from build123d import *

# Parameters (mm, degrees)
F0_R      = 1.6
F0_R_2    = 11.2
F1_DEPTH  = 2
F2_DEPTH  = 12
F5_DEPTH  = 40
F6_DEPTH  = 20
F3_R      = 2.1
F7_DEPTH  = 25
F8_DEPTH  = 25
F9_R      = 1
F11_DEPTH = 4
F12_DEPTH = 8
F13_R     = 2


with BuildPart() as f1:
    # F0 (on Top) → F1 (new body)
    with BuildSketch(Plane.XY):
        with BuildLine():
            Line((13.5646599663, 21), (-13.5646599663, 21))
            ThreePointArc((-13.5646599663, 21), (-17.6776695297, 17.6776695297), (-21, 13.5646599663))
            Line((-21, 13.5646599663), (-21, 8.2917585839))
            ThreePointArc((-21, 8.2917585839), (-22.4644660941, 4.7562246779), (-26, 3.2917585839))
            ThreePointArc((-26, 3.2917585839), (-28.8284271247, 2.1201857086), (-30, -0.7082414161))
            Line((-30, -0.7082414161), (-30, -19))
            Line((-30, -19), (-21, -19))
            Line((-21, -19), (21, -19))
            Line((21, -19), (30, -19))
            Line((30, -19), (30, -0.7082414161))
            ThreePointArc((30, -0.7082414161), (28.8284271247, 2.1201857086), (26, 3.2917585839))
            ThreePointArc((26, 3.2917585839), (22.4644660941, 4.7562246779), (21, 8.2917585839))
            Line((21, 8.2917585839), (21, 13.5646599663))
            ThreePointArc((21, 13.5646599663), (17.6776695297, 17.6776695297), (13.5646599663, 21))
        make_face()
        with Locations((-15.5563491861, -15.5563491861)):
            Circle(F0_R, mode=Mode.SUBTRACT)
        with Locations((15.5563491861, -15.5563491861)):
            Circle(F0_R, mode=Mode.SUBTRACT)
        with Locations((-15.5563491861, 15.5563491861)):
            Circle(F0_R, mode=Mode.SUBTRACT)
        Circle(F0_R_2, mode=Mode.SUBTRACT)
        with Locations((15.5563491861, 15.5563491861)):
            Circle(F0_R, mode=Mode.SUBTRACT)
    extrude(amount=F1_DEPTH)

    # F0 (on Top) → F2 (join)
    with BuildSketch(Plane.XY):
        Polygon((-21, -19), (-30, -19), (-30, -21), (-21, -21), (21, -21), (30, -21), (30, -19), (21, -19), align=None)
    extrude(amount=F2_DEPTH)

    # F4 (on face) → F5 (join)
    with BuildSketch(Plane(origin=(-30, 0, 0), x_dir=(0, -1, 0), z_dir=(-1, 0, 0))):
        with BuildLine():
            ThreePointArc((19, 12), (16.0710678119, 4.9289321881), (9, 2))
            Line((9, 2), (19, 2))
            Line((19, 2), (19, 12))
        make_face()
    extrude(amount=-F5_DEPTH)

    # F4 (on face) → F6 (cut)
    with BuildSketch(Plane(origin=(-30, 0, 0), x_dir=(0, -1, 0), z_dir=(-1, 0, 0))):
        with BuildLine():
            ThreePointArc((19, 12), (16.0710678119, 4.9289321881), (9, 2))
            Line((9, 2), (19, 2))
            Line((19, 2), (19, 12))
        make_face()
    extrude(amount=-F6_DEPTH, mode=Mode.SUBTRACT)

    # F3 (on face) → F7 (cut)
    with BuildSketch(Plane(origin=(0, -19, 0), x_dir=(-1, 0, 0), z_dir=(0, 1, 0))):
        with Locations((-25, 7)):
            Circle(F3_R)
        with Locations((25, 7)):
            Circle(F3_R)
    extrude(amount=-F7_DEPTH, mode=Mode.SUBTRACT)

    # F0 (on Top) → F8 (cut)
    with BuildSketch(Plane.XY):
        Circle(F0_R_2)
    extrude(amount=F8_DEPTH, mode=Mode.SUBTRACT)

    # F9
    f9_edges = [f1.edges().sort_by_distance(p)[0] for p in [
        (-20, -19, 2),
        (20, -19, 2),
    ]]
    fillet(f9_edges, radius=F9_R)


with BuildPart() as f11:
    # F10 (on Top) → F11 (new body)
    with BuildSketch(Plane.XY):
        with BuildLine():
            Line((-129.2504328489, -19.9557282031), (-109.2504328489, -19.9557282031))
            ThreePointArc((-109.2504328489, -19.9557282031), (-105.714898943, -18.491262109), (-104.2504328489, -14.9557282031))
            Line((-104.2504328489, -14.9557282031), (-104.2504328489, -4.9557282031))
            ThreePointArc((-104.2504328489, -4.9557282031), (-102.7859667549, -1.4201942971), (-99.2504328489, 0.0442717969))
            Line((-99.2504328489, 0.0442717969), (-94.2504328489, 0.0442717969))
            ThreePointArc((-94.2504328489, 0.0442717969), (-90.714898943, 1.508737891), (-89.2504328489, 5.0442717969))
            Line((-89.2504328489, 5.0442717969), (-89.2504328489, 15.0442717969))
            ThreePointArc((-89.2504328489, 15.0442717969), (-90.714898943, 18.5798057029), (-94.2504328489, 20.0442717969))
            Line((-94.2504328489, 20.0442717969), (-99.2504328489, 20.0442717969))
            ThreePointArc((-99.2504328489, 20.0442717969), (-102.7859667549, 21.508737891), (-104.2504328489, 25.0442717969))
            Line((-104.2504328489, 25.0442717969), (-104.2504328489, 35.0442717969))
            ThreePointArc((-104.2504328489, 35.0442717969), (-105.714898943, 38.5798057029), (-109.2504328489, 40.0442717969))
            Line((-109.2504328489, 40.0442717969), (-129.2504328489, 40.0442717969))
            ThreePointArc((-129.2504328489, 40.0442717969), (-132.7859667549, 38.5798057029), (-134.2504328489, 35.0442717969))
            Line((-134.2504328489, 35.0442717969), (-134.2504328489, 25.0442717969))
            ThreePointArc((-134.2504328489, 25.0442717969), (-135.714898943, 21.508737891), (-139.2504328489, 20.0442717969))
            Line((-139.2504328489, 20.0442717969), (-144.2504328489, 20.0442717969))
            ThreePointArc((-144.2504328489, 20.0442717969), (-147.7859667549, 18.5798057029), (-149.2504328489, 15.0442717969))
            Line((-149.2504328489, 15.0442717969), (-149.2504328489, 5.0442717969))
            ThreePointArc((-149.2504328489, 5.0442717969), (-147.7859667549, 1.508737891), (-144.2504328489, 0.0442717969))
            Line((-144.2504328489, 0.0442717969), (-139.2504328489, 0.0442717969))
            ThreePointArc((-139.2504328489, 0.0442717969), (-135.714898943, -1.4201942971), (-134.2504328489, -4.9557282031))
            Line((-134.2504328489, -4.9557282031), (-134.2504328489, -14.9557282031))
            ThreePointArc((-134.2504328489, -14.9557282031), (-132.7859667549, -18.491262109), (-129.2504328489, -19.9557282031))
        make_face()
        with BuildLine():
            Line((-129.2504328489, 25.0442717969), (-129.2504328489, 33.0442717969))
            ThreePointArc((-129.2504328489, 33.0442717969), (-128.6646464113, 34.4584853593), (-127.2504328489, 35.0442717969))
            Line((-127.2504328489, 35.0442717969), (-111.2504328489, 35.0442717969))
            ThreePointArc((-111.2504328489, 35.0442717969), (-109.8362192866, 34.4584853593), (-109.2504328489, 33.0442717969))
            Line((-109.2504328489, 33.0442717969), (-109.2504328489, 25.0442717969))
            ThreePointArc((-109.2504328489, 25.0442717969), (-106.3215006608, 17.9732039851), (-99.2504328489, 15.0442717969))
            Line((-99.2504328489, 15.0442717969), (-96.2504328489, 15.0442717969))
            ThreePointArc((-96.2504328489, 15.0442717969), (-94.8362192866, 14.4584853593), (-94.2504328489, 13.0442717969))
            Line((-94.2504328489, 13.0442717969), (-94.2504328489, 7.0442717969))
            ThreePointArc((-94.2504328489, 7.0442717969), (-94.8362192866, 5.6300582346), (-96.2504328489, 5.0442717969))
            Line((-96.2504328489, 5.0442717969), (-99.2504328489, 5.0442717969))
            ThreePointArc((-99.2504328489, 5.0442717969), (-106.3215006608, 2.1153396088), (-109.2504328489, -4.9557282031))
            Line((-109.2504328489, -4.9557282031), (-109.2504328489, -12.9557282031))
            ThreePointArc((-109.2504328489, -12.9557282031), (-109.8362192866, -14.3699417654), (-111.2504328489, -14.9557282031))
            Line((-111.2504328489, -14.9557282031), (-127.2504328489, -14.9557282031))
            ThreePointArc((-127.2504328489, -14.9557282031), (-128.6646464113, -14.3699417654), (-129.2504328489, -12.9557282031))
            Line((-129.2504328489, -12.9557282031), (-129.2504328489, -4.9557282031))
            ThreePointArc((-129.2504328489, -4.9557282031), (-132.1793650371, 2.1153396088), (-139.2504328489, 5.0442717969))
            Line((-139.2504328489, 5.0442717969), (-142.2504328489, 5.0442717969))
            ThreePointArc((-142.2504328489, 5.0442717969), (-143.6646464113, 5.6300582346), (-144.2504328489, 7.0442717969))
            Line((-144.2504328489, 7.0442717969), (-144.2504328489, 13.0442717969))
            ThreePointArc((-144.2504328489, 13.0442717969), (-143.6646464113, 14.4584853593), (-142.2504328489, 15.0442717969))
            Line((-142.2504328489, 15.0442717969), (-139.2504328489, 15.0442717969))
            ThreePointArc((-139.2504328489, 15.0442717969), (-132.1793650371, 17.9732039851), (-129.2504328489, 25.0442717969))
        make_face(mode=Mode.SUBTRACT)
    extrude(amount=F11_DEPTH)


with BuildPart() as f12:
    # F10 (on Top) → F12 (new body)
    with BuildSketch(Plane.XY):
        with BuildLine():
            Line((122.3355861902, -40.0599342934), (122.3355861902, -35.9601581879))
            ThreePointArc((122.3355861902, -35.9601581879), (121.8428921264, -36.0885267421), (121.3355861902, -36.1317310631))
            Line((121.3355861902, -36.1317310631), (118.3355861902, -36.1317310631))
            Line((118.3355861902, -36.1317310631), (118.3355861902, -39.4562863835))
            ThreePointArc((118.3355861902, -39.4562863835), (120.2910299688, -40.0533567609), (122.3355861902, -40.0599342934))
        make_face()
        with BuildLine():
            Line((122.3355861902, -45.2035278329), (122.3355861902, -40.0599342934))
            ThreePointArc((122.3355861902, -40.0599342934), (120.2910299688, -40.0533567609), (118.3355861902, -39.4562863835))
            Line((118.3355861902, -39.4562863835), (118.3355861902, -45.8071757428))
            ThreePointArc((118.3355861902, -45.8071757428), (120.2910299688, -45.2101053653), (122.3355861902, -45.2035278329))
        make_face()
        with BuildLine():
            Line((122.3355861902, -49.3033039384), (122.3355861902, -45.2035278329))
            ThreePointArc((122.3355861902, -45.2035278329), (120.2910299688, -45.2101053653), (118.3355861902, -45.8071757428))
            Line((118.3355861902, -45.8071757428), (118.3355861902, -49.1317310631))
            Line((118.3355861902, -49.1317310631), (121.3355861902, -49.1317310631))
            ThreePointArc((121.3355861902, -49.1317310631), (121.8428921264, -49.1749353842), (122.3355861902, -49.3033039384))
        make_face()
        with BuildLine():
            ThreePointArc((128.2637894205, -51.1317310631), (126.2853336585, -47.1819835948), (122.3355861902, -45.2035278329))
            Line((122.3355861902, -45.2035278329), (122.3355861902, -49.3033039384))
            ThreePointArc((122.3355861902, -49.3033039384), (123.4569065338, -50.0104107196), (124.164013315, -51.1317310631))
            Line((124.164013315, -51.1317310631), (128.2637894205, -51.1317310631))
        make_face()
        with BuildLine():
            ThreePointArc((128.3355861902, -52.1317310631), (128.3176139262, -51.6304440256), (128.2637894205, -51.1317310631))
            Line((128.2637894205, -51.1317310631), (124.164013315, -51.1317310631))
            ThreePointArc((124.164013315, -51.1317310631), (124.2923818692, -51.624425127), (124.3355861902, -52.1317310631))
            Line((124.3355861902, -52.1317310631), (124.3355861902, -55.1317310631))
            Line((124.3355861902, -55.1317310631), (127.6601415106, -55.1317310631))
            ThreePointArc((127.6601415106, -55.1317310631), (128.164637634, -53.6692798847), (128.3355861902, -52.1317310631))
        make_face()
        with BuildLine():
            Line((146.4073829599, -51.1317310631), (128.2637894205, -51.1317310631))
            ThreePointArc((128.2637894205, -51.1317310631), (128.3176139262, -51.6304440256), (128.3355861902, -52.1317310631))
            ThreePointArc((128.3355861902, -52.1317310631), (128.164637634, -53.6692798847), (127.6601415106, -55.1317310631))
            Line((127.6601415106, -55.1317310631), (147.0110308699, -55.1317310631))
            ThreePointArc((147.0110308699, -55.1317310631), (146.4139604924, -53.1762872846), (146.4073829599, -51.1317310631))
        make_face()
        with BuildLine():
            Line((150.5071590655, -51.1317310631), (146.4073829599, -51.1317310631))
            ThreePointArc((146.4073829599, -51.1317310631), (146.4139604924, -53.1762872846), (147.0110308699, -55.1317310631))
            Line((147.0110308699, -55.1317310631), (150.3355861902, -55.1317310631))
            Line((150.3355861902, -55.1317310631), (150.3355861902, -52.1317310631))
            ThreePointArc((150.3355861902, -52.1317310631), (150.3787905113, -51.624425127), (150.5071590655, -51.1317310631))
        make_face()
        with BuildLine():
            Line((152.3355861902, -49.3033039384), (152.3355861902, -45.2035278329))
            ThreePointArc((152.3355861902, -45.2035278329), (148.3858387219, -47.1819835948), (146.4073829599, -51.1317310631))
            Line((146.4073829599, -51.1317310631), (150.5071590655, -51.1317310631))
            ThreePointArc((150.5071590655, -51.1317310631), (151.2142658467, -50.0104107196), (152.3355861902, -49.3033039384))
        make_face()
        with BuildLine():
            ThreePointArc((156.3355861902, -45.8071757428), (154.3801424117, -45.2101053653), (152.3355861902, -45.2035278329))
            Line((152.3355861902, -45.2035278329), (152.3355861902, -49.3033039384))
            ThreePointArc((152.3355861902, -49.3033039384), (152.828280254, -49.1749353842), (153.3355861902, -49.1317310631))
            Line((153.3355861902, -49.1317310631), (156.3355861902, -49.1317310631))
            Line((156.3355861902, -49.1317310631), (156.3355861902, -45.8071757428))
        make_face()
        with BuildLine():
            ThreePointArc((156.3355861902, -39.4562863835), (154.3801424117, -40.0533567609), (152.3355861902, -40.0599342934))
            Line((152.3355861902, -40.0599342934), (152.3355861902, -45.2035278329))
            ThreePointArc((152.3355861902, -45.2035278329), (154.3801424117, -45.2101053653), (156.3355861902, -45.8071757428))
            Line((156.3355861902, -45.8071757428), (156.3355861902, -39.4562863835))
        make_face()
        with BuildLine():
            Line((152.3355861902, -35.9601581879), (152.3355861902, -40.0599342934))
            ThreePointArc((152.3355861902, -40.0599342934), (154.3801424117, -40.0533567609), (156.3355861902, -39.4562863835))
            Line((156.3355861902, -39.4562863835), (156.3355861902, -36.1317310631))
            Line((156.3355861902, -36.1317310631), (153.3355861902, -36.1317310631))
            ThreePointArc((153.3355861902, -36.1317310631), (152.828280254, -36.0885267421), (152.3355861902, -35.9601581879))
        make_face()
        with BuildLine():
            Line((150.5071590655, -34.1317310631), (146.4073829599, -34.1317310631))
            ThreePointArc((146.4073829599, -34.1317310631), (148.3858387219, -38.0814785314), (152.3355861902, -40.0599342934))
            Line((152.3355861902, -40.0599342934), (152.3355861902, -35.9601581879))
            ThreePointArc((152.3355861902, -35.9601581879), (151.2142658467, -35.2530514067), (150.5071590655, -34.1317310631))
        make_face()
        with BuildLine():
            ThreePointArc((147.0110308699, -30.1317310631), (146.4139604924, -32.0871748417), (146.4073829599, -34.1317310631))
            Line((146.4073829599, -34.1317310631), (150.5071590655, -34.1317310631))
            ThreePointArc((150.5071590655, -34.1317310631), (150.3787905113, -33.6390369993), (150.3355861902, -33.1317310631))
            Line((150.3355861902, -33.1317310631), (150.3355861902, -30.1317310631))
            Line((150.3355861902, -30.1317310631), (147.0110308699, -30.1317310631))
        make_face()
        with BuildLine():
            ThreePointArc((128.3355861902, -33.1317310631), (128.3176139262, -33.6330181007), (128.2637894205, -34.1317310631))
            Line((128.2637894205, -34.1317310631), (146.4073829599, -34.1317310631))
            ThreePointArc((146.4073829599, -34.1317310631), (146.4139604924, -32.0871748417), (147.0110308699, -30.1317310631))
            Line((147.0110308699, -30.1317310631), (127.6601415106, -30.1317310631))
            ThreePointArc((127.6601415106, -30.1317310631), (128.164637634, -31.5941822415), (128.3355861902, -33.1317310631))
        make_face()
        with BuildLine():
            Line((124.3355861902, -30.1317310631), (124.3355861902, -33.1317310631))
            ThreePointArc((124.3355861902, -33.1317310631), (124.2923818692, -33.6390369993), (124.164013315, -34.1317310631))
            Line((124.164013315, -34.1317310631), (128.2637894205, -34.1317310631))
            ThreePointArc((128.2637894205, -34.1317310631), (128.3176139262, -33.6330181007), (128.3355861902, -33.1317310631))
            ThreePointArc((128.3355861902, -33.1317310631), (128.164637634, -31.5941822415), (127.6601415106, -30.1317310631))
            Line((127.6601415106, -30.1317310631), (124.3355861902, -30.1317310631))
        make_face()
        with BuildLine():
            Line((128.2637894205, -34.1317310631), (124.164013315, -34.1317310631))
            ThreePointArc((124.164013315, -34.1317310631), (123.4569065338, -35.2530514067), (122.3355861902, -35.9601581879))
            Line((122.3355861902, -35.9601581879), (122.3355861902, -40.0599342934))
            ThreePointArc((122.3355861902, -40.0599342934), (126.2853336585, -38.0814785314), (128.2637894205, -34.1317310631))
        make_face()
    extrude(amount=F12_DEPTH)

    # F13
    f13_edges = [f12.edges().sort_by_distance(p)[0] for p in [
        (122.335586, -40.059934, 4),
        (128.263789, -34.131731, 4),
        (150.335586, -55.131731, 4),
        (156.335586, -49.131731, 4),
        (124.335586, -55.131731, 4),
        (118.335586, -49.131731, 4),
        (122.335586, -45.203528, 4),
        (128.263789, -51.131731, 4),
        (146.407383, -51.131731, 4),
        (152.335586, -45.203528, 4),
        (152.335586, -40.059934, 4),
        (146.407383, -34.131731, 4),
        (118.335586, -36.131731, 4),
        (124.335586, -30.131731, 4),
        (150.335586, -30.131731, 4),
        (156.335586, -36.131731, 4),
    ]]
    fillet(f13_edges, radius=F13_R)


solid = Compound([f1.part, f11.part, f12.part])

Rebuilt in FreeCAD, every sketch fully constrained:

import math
import FreeCAD as App
import Part
import Sketcher


def edges_at(feature, points):
    """Names of the edges that pass closest to the given points."""
    edges = feature.Shape.Edges
    near = lambda p: min(range(len(edges)), key=lambda i: edges[i].distToShape(Part.Vertex(*p))[0])
    return sorted({f"Edge{near(p) + 1}" for p in points})


def add_polygon(sketch, points):
    """Adds a closed chain of lines whose ends are joined by coincident constraints."""
    first, n = sketch.GeometryCount, len(points)
    for a, b in zip(points, points[1:] + points[:1]):
        sketch.addGeometry(Part.LineSegment(App.Vector(*a, 0), App.Vector(*b, 0)), False)
    for i in range(n):
        sketch.addConstraint(Sketcher.Constraint("Coincident", first + i, 2, first + (i + 1) % n, 1))

doc = App.newDocument("Part")
body = doc.addObject("PartDesign::Body", "Body")

# Sketch on XY plane
sketch1 = doc.addObject("Sketcher::SketchObject", "Sketch")
body.addObject(sketch1)
sketch1.AttachmentSupport = (doc.XY_Plane, [""])
sketch1.MapMode = "FlatFace"
sketch1.addGeometry([
    Part.LineSegment(App.Vector(13.6, 21, 0), App.Vector(-13.6, 21, 0)),  # 0
    Part.ArcOfCircle(Part.Circle(App.Vector(0, 0, 0), App.Vector(0, 0, 1), 25), math.radians(123), math.radians(147)),  # 1
    Part.LineSegment(App.Vector(-21, 13.6, 0), App.Vector(-21, 8.3, 0)),  # 2
    Part.ArcOfCircle(Part.Circle(App.Vector(-26, 8.3, 0), App.Vector(0, 0, 1), 5), math.radians(-90), math.radians(0)),  # 3
    Part.ArcOfCircle(Part.Circle(App.Vector(-26, -0.7, 0), App.Vector(0, 0, 1), 4), math.radians(90), math.radians(180)),  # 4
    Part.LineSegment(App.Vector(-30, -0.7, 0), App.Vector(-30, -19, 0)),  # 5
    Part.LineSegment(App.Vector(-30, -19, 0), App.Vector(30, -19, 0)),  # 6
    Part.LineSegment(App.Vector(30, -19, 0), App.Vector(30, -0.7, 0)),  # 7
    Part.ArcOfCircle(Part.Circle(App.Vector(26, -0.7, 0), App.Vector(0, 0, 1), 4), math.radians(0), math.radians(90)),  # 8
    Part.ArcOfCircle(Part.Circle(App.Vector(26, 8.3, 0), App.Vector(0, 0, 1), 5), math.radians(180), math.radians(270)),  # 9
    Part.LineSegment(App.Vector(21, 8.3, 0), App.Vector(21, 13.6, 0)),  # 10
    Part.ArcOfCircle(Part.Circle(App.Vector(0, 0, 0), App.Vector(0, 0, 1), 25), math.radians(33), math.radians(57)),  # 11
    Part.Circle(App.Vector(-15.6, -15.6, 0), App.Vector(0, 0, 1), 1.6),  # 12
    Part.Circle(App.Vector(15.6, -15.6, 0), App.Vector(0, 0, 1), 1.6),  # 13
    Part.Circle(App.Vector(-15.6, 15.6, 0), App.Vector(0, 0, 1), 1.6),  # 14
    Part.Circle(App.Vector(0, 0, 0), App.Vector(0, 0, 1), 11.2),  # 15
    Part.Circle(App.Vector(15.6, 15.6, 0), App.Vector(0, 0, 1), 1.6),  # 16
], False)
sketch1.addConstraint([
    Sketcher.Constraint("Coincident", 0, 2, 1, 1),
    Sketcher.Constraint("Coincident", 1, 2, 2, 1),
    Sketcher.Constraint("Tangent", 2, 2, 3, 2),
    Sketcher.Constraint("Tangent", 3, 1, 4, 1),
    Sketcher.Constraint("Tangent", 4, 2, 5, 1),
    Sketcher.Constraint("Coincident", 5, 2, 6, 1),
    Sketcher.Constraint("Coincident", 6, 2, 7, 1),
    Sketcher.Constraint("Tangent", 7, 2, 8, 1),
    Sketcher.Constraint("Tangent", 8, 2, 9, 2),
    Sketcher.Constraint("Tangent", 9, 1, 10, 1),
    Sketcher.Constraint("Coincident", 10, 2, 11, 1),
    Sketcher.Constraint("Coincident", 11, 2, 0, 1),
    Sketcher.Constraint("Horizontal", 0),
    Sketcher.Constraint("Vertical", 2),
    Sketcher.Constraint("Vertical", 5),
    Sketcher.Constraint("Horizontal", 6),
    Sketcher.Constraint("Vertical", 7),
    Sketcher.Constraint("Vertical", 10),
    Sketcher.Constraint("Coincident", 1, 3, -1, 1),
    Sketcher.Constraint("Coincident", 11, 3, -1, 1),
    Sketcher.Constraint("Coincident", 15, 3, -1, 1),
    Sketcher.Constraint("Equal", 4, 8),
    Sketcher.Constraint("Equal", 3, 9),
    Sketcher.Constraint("Equal", 1, 11),
    Sketcher.Constraint("Equal", 12, 13),
    Sketcher.Constraint("Equal", 13, 14),
    Sketcher.Constraint("Equal", 14, 16),
    Sketcher.Constraint("Symmetric", 13, 3, 14, 3, -1, 1),
    Sketcher.Constraint("Symmetric", 12, 3, 16, 3, -1, 1),
    Sketcher.Constraint("Symmetric", 4, 3, 8, 3, -2),
    Sketcher.Constraint("Symmetric", 12, 3, 13, 3, -2),
    Sketcher.Constraint("Horizontal", 1, 2, 10, 2),
    Sketcher.Constraint("Vertical", 3, 3, 4, 3),
    Sketcher.Constraint("Radius", 1, 25.0),
    Sketcher.Constraint("Radius", 3, 5.0),
    Sketcher.Constraint("Radius", 4, 4.0),
    Sketcher.Constraint("Diameter", 12, 3.2),
    Sketcher.Constraint("Diameter", 15, 22.4),
    Sketcher.Constraint("DistanceX", 6, 1, 6, 2, 60.0),
    Sketcher.Constraint("DistanceY", -1, 1, 0, 2, 21.0),
    Sketcher.Constraint("DistanceY", 5, 2, -1, 1, 19.0),
    Sketcher.Constraint("DistanceY", 2, 2, 2, 1, 5.272901),
    Sketcher.Constraint("DistanceX", 12, 3, 13, 3, 31.112698),
    Sketcher.Constraint("DistanceY", 12, 3, 14, 3, 31.112698),
])
pad1 = doc.addObject("PartDesign::Pad", "Pad")
body.addObject(pad1)
pad1.Profile = sketch1
pad1.Length = 2

# Sketch on XY plane
sketch2 = doc.addObject("Sketcher::SketchObject", "Sketch001")
body.addObject(sketch2)
sketch2.AttachmentSupport = (doc.XY_Plane, [""])
sketch2.MapMode = "FlatFace"
add_polygon(sketch2, [(-30, -19), (-30, -21), (30, -21), (30, -19)])  # lines 0-3
sketch2.addConstraint([
    Sketcher.Constraint("Vertical", 0),
    Sketcher.Constraint("Horizontal", 1),
    Sketcher.Constraint("Vertical", 2),
    Sketcher.Constraint("Horizontal", 3),
    Sketcher.Constraint("DistanceX", 1, 1, 1, 2, 60.0),
    Sketcher.Constraint("DistanceY", 0, 2, 0, 1, 2.0),
    Sketcher.Constraint("DistanceX", 0, 2, -1, 1, 30.0),
    Sketcher.Constraint("DistanceY", 0, 2, -1, 1, 21.0),
])
pad2 = doc.addObject("PartDesign::Pad", "Pad001")
body.addObject(pad2)
pad2.Profile = sketch2
pad2.Length = 12

# Sketch on YZ plane
sketch3 = doc.addObject("Sketcher::SketchObject", "Sketch002")
body.addObject(sketch3)
sketch3.AttachmentSupport = (doc.YZ_Plane, [""])
sketch3.MapMode = "FlatFace"
sketch3.AttachmentOffset = App.Placement(App.Vector(0, 0, -30), App.Rotation())
sketch3.addGeometry([
    Part.ArcOfCircle(Part.Circle(App.Vector(-9, 12, 0), App.Vector(0, 0, 1), 10), math.radians(180), math.radians(270)),
    Part.LineSegment(App.Vector(-9, 2, 0), App.Vector(-19, 2, 0)),
    Part.LineSegment(App.Vector(-19, 2, 0), App.Vector(-19, 12, 0)),
], False)
sketch3.addConstraint([
    Sketcher.Constraint("Tangent", 0, 2, 1, 1),
    Sketcher.Constraint("Coincident", 1, 2, 2, 1),
    Sketcher.Constraint("Tangent", 2, 2, 0, 1),
    Sketcher.Constraint("Horizontal", 1),
    Sketcher.Constraint("Vertical", 2),
    Sketcher.Constraint("Radius", 0, 10.0),
    Sketcher.Constraint("DistanceX", 0, 3, -1, 1, 9.0),
    Sketcher.Constraint("DistanceY", -1, 1, 0, 3, 12.0),
])
pad3 = doc.addObject("PartDesign::Pad", "Pad002")
body.addObject(pad3)
pad3.Profile = sketch3
pad3.Length = 40

# Sketch on YZ plane
sketch4 = doc.addObject("Sketcher::SketchObject", "Sketch003")
body.addObject(sketch4)
sketch4.AttachmentSupport = (doc.YZ_Plane, [""])
sketch4.MapMode = "FlatFace"
sketch4.AttachmentOffset = App.Placement(App.Vector(0, 0, -30), App.Rotation())
sketch4.addGeometry([
    Part.ArcOfCircle(Part.Circle(App.Vector(-9, 12, 0), App.Vector(0, 0, 1), 10), math.radians(180), math.radians(270)),
    Part.LineSegment(App.Vector(-9, 2, 0), App.Vector(-19, 2, 0)),
    Part.LineSegment(App.Vector(-19, 2, 0), App.Vector(-19, 12, 0)),
], False)
sketch4.addConstraint([
    Sketcher.Constraint("Tangent", 0, 2, 1, 1),
    Sketcher.Constraint("Coincident", 1, 2, 2, 1),
    Sketcher.Constraint("Tangent", 2, 2, 0, 1),
    Sketcher.Constraint("Horizontal", 1),
    Sketcher.Constraint("Vertical", 2),
    Sketcher.Constraint("Radius", 0, 10.0),
    Sketcher.Constraint("DistanceX", 0, 3, -1, 1, 9.0),
    Sketcher.Constraint("DistanceY", -1, 1, 0, 3, 12.0),
])
pocket1 = doc.addObject("PartDesign::Pocket", "Pocket")
body.addObject(pocket1)
pocket1.Profile = sketch4
pocket1.Length = 20
pocket1.Reversed = True

# Sketch on XZ plane
sketch5 = doc.addObject("Sketcher::SketchObject", "Sketch004")
body.addObject(sketch5)
sketch5.AttachmentSupport = (doc.XZ_Plane, [""])
sketch5.MapMode = "FlatFace"
sketch5.AttachmentOffset = App.Placement(App.Vector(0, 0, 19), App.Rotation())
sketch5.addGeometry([
    Part.Circle(App.Vector(25, 7, 0), App.Vector(0, 0, 1), 2.1),
    Part.Circle(App.Vector(-25, 7, 0), App.Vector(0, 0, 1), 2.1),
], False)
sketch5.addConstraint([
    Sketcher.Constraint("Equal", 0, 1),
    Sketcher.Constraint("Symmetric", 0, 3, 1, 3, -2),
    Sketcher.Constraint("Diameter", 0, 4.2),
    Sketcher.Constraint("DistanceX", -1, 1, 0, 3, 25.0),
    Sketcher.Constraint("DistanceY", -1, 1, 0, 3, 7.0),
])
pocket2 = doc.addObject("PartDesign::Pocket", "Pocket001")
body.addObject(pocket2)
pocket2.Profile = sketch5
pocket2.Length = 25
pocket2.Reversed = True

# Sketch on XY plane
sketch6 = doc.addObject("Sketcher::SketchObject", "Sketch005")
body.addObject(sketch6)
sketch6.AttachmentSupport = (doc.XY_Plane, [""])
sketch6.MapMode = "FlatFace"
sketch6.addGeometry(Part.Circle(App.Vector(0, 0, 0), App.Vector(0, 0, 1), 11), False)
sketch6.addConstraint([
    Sketcher.Constraint("Coincident", 0, 3, -1, 1),
    Sketcher.Constraint("Diameter", 0, 22.4),
])
pocket3 = doc.addObject("PartDesign::Pocket", "Pocket002")
body.addObject(pocket3)
pocket3.Profile = sketch6
pocket3.Length = 25
pocket3.Reversed = True
doc.recompute()

fillet = doc.addObject("PartDesign::Fillet", "Fillet")
body.addObject(fillet)
fillet.Base = (pocket3, edges_at(pocket3, [(-20, -19, 2), (20, -19, 2)]))
fillet.Radius = 1
body2 = doc.addObject("PartDesign::Body", "Body001")

# Sketch on XY plane
sketch7 = doc.addObject("Sketcher::SketchObject", "Sketch006")
body2.addObject(sketch7)
sketch7.AttachmentSupport = (doc.getObject("XY_Plane001"), [""])
sketch7.MapMode = "FlatFace"
sketch7.addGeometry([
    Part.LineSegment(App.Vector(-129.3, -20, 0), App.Vector(-109.3, -20, 0)),  # 0
    Part.ArcOfCircle(Part.Circle(App.Vector(-109.3, -15, 0), App.Vector(0, 0, 1), 5), math.radians(-90), math.radians(0)),  # 1
    Part.LineSegment(App.Vector(-104.3, -15, 0), App.Vector(-104.3, -5, 0)),  # 2
    Part.ArcOfCircle(Part.Circle(App.Vector(-99.3, -5, 0), App.Vector(0, 0, 1), 5), math.radians(90), math.radians(180)),  # 3
    Part.LineSegment(App.Vector(-99.3, 0, 0), App.Vector(-94.3, 0, 0)),  # 4
    Part.ArcOfCircle(Part.Circle(App.Vector(-94.3, 5, 0), App.Vector(0, 0, 1), 5), math.radians(-90), math.radians(0)),  # 5
    Part.LineSegment(App.Vector(-89.3, 5, 0), App.Vector(-89.3, 15, 0)),  # 6
    Part.ArcOfCircle(Part.Circle(App.Vector(-94.3, 15, 0), App.Vector(0, 0, 1), 5), math.radians(0), math.radians(90)),  # 7
    Part.LineSegment(App.Vector(-94.3, 20, 0), App.Vector(-99.3, 20, 0)),  # 8
    Part.ArcOfCircle(Part.Circle(App.Vector(-99.3, 25, 0), App.Vector(0, 0, 1), 5), math.radians(180), math.radians(270)),  # 9
    Part.LineSegment(App.Vector(-104.3, 25, 0), App.Vector(-104.3, 35, 0)),  # 10
    Part.ArcOfCircle(Part.Circle(App.Vector(-109.3, 35, 0), App.Vector(0, 0, 1), 5), math.radians(0), math.radians(90)),  # 11
    Part.LineSegment(App.Vector(-109.3, 40, 0), App.Vector(-129.3, 40, 0)),  # 12
    Part.ArcOfCircle(Part.Circle(App.Vector(-129.3, 35, 0), App.Vector(0, 0, 1), 5), math.radians(90), math.radians(180)),  # 13
    Part.LineSegment(App.Vector(-134.3, 35, 0), App.Vector(-134.3, 25, 0)),  # 14
    Part.ArcOfCircle(Part.Circle(App.Vector(-139.3, 25, 0), App.Vector(0, 0, 1), 5), math.radians(-90), math.radians(0)),  # 15
    Part.LineSegment(App.Vector(-139.3, 20, 0), App.Vector(-144.3, 20, 0)),  # 16
    Part.ArcOfCircle(Part.Circle(App.Vector(-144.3, 15, 0), App.Vector(0, 0, 1), 5), math.radians(90), math.radians(180)),  # 17
    Part.LineSegment(App.Vector(-149.3, 15, 0), App.Vector(-149.3, 5, 0)),  # 18
    Part.ArcOfCircle(Part.Circle(App.Vector(-144.3, 5, 0), App.Vector(0, 0, 1), 5), math.radians(180), math.radians(270)),  # 19
    Part.LineSegment(App.Vector(-144.3, 0, 0), App.Vector(-139.3, 0, 0)),  # 20
    Part.ArcOfCircle(Part.Circle(App.Vector(-139.3, -5, 0), App.Vector(0, 0, 1), 5), math.radians(0), math.radians(90)),  # 21
    Part.LineSegment(App.Vector(-134.3, -5, 0), App.Vector(-134.3, -15, 0)),  # 22
    Part.ArcOfCircle(Part.Circle(App.Vector(-129.3, -15, 0), App.Vector(0, 0, 1), 5), math.radians(180), math.radians(270)),  # 23
    Part.ArcOfCircle(Part.Circle(App.Vector(-139.3, 25, 0), App.Vector(0, 0, 1), 10), math.radians(-90), math.radians(0)),  # 24
    Part.LineSegment(App.Vector(-129.3, 25, 0), App.Vector(-129.3, 33, 0)),  # 25
    Part.ArcOfCircle(Part.Circle(App.Vector(-127.3, 33, 0), App.Vector(0, 0, 1), 2), math.radians(90), math.radians(180)),  # 26
    Part.LineSegment(App.Vector(-127.3, 35, 0), App.Vector(-111.3, 35, 0)),  # 27
    Part.ArcOfCircle(Part.Circle(App.Vector(-111.3, 33, 0), App.Vector(0, 0, 1), 2), math.radians(0), math.radians(90)),  # 28
    Part.LineSegment(App.Vector(-109.3, 33, 0), App.Vector(-109.3, 25, 0)),  # 29
    Part.ArcOfCircle(Part.Circle(App.Vector(-99.3, 25, 0), App.Vector(0, 0, 1), 10), math.radians(180), math.radians(270)),  # 30
    Part.LineSegment(App.Vector(-99.3, 15, 0), App.Vector(-96.3, 15, 0)),  # 31
    Part.ArcOfCircle(Part.Circle(App.Vector(-96.3, 13, 0), App.Vector(0, 0, 1), 2), math.radians(0), math.radians(90)),  # 32
    Part.LineSegment(App.Vector(-94.3, 13, 0), App.Vector(-94.3, 7, 0)),  # 33
    Part.ArcOfCircle(Part.Circle(App.Vector(-96.3, 7, 0), App.Vector(0, 0, 1), 2), math.radians(-90), math.radians(0)),  # 34
    Part.LineSegment(App.Vector(-96.3, 5, 0), App.Vector(-99.3, 5, 0)),  # 35
    Part.ArcOfCircle(Part.Circle(App.Vector(-99.3, -5, 0), App.Vector(0, 0, 1), 10), math.radians(90), math.radians(180)),  # 36
    Part.LineSegment(App.Vector(-109.3, -5, 0), App.Vector(-109.3, -13, 0)),  # 37
    Part.ArcOfCircle(Part.Circle(App.Vector(-111.3, -13, 0), App.Vector(0, 0, 1), 2), math.radians(-90), math.radians(0)),  # 38
    Part.LineSegment(App.Vector(-111.3, -15, 0), App.Vector(-127.3, -15, 0)),  # 39
    Part.ArcOfCircle(Part.Circle(App.Vector(-127.3, -13, 0), App.Vector(0, 0, 1), 2), math.radians(180), math.radians(270)),  # 40
    Part.LineSegment(App.Vector(-129.3, -13, 0), App.Vector(-129.3, -5, 0)),  # 41
    Part.ArcOfCircle(Part.Circle(App.Vector(-139.3, -5, 0), App.Vector(0, 0, 1), 10), math.radians(0), math.radians(90)),  # 42
    Part.LineSegment(App.Vector(-139.3, 5, 0), App.Vector(-142.3, 5, 0)),  # 43
    Part.ArcOfCircle(Part.Circle(App.Vector(-142.3, 7, 0), App.Vector(0, 0, 1), 2), math.radians(180), math.radians(270)),  # 44
    Part.LineSegment(App.Vector(-144.3, 7, 0), App.Vector(-144.3, 13, 0)),  # 45
    Part.ArcOfCircle(Part.Circle(App.Vector(-142.3, 13, 0), App.Vector(0, 0, 1), 2), math.radians(90), math.radians(180)),  # 46
    Part.LineSegment(App.Vector(-142.3, 15, 0), App.Vector(-139.3, 15, 0)),  # 47
], False)
sketch7.addConstraint([
    Sketcher.Constraint("Tangent", 0, 2, 1, 1),
    Sketcher.Constraint("Tangent", 1, 2, 2, 1),
    Sketcher.Constraint("Tangent", 2, 2, 3, 2),
    Sketcher.Constraint("Tangent", 3, 1, 4, 1),
    Sketcher.Constraint("Tangent", 4, 2, 5, 1),
    Sketcher.Constraint("Tangent", 5, 2, 6, 1),
    Sketcher.Constraint("Tangent", 6, 2, 7, 1),
    Sketcher.Constraint("Tangent", 7, 2, 8, 1),
    Sketcher.Constraint("Tangent", 8, 2, 9, 2),
    Sketcher.Constraint("Tangent", 9, 1, 10, 1),
    Sketcher.Constraint("Tangent", 10, 2, 11, 1),
    Sketcher.Constraint("Tangent", 11, 2, 12, 1),
    Sketcher.Constraint("Tangent", 12, 2, 13, 1),
    Sketcher.Constraint("Tangent", 13, 2, 14, 1),
    Sketcher.Constraint("Tangent", 14, 2, 15, 2),
    Sketcher.Constraint("Tangent", 15, 1, 16, 1),
    Sketcher.Constraint("Tangent", 16, 2, 17, 1),
    Sketcher.Constraint("Tangent", 17, 2, 18, 1),
    Sketcher.Constraint("Tangent", 18, 2, 19, 1),
    Sketcher.Constraint("Tangent", 19, 2, 20, 1),
    Sketcher.Constraint("Tangent", 20, 2, 21, 2),
    Sketcher.Constraint("Tangent", 21, 1, 22, 1),
    Sketcher.Constraint("Tangent", 22, 2, 23, 1),
    Sketcher.Constraint("Tangent", 23, 2, 0, 1),
    Sketcher.Constraint("Tangent", 24, 2, 25, 1),
    Sketcher.Constraint("Tangent", 25, 2, 26, 2),
    Sketcher.Constraint("Tangent", 26, 1, 27, 1),
    Sketcher.Constraint("Tangent", 27, 2, 28, 2),
    Sketcher.Constraint("Tangent", 28, 1, 29, 1),
    Sketcher.Constraint("Tangent", 29, 2, 30, 1),
    Sketcher.Constraint("Tangent", 30, 2, 31, 1),
    Sketcher.Constraint("Tangent", 31, 2, 32, 2),
    Sketcher.Constraint("Tangent", 32, 1, 33, 1),
    Sketcher.Constraint("Tangent", 33, 2, 34, 2),
    Sketcher.Constraint("Tangent", 34, 1, 35, 1),
    Sketcher.Constraint("Tangent", 35, 2, 36, 1),
    Sketcher.Constraint("Tangent", 36, 2, 37, 1),
    Sketcher.Constraint("Tangent", 37, 2, 38, 2),
    Sketcher.Constraint("Tangent", 38, 1, 39, 1),
    Sketcher.Constraint("Tangent", 39, 2, 40, 2),
    Sketcher.Constraint("Tangent", 40, 1, 41, 1),
    Sketcher.Constraint("Tangent", 41, 2, 42, 1),
    Sketcher.Constraint("Tangent", 42, 2, 43, 1),
    Sketcher.Constraint("Tangent", 43, 2, 44, 2),
    Sketcher.Constraint("Tangent", 44, 1, 45, 1),
    Sketcher.Constraint("Tangent", 45, 2, 46, 2),
    Sketcher.Constraint("Tangent", 46, 1, 47, 1),
    Sketcher.Constraint("Tangent", 47, 2, 24, 1),
    Sketcher.Constraint("Horizontal", 0),
    Sketcher.Constraint("Vertical", 2),
    Sketcher.Constraint("Horizontal", 4),
    Sketcher.Constraint("Vertical", 6),
    Sketcher.Constraint("Horizontal", 8),
    Sketcher.Constraint("Vertical", 10),
    Sketcher.Constraint("Horizontal", 12),
    Sketcher.Constraint("Vertical", 14),
    Sketcher.Constraint("Horizontal", 16),
    Sketcher.Constraint("Vertical", 18),
    Sketcher.Constraint("Horizontal", 20),
    Sketcher.Constraint("Vertical", 22),
    Sketcher.Constraint("Vertical", 25),
    Sketcher.Constraint("Horizontal", 27),
    Sketcher.Constraint("Vertical", 29),
    Sketcher.Constraint("Horizontal", 31),
    Sketcher.Constraint("Vertical", 33),
    Sketcher.Constraint("Horizontal", 35),
    Sketcher.Constraint("Vertical", 37),
    Sketcher.Constraint("Horizontal", 39),
    Sketcher.Constraint("Vertical", 41),
    Sketcher.Constraint("Horizontal", 43),
    Sketcher.Constraint("Vertical", 45),
    Sketcher.Constraint("Horizontal", 47),
    Sketcher.Constraint("Coincident", 24, 3, 15, 3),
    Sketcher.Constraint("Coincident", 30, 3, 9, 3),
    Sketcher.Constraint("Coincident", 36, 3, 3, 3),
    Sketcher.Constraint("Coincident", 42, 3, 21, 3),
    Sketcher.Constraint("Equal", 1, 3),
    Sketcher.Constraint("Equal", 3, 5),
    Sketcher.Constraint("Equal", 5, 7),
    Sketcher.Constraint("Equal", 7, 9),
    Sketcher.Constraint("Equal", 9, 11),
    Sketcher.Constraint("Equal", 11, 13),
    Sketcher.Constraint("Equal", 13, 15),
    Sketcher.Constraint("Equal", 15, 17),
    Sketcher.Constraint("Equal", 17, 19),
    Sketcher.Constraint("Equal", 19, 21),
    Sketcher.Constraint("Equal", 21, 23),
    Sketcher.Constraint("Equal", 26, 28),
    Sketcher.Constraint("Equal", 24, 30),
    Sketcher.Constraint("Equal", 28, 32),
    Sketcher.Constraint("Equal", 32, 34),
    Sketcher.Constraint("Equal", 30, 36),
    Sketcher.Constraint("Equal", 34, 38),
    Sketcher.Constraint("Equal", 38, 40),
    Sketcher.Constraint("Equal", 36, 42),
    Sketcher.Constraint("Equal", 40, 44),
    Sketcher.Constraint("Equal", 44, 46),
    Sketcher.Constraint("Horizontal", 9, 3, 15, 3),
    Sketcher.Constraint("Horizontal", 5, 3, 19, 3),
    Sketcher.Constraint("Horizontal", 13, 2, 26, 1),
    Sketcher.Constraint("Horizontal", 17, 2, 30, 2),
    Sketcher.Constraint("Horizontal", 22, 2, 38, 1),
    Sketcher.Constraint("Vertical", 3, 3, 9, 3),
    Sketcher.Constraint("Vertical", 15, 3, 21, 3),
    Sketcher.Constraint("Vertical", 7, 2, 32, 1),
    Sketcher.Constraint("Vertical", 19, 2, 44, 1),
    Sketcher.Constraint("Equal", 8, 16),
    Sketcher.Constraint("Equal", 2, 6),
    Sketcher.Constraint("Equal", 6, 10),
    Sketcher.Constraint("Radius", 1, 5.0),
    Sketcher.Constraint("Radius", 26, 2.0),
    Sketcher.Constraint("DistanceX", 0, 1, 0, 2, 20.0),
    Sketcher.Constraint("DistanceX", 4, 1, 4, 2, 5.0),
    Sketcher.Constraint("DistanceY", 2, 1, 2, 2, 10.0),
    Sketcher.Constraint("DistanceY", 1, 3, -1, 1, 14.955728),
    Sketcher.Constraint("DistanceX", 1, 3, -1, 1, 109.250433),
])
pad4 = doc.addObject("PartDesign::Pad", "Pad003")
body2.addObject(pad4)
pad4.Profile = sketch7
pad4.Length = 4
body3 = doc.addObject("PartDesign::Body", "Body002")

# Sketch on XY plane
sketch8 = doc.addObject("Sketcher::SketchObject", "Sketch007")
body3.addObject(sketch8)
sketch8.AttachmentSupport = (doc.getObject("XY_Plane002"), [""])
sketch8.MapMode = "FlatFace"
sketch8.addGeometry([
    Part.ArcOfCircle(Part.Circle(App.Vector(121.3, -33.1, 0), App.Vector(0, 0, 1), 3), math.radians(-90), math.radians(-70.53)),  # 0
    Part.LineSegment(App.Vector(121.3, -36.1, 0), App.Vector(118.3, -36.1, 0)),  # 1
    Part.LineSegment(App.Vector(118.3, -36.1, 0), App.Vector(118.3, -49.1, 0)),  # 2
    Part.LineSegment(App.Vector(118.3, -49.1, 0), App.Vector(121.3, -49.1, 0)),  # 3
    Part.ArcOfCircle(Part.Circle(App.Vector(121.3, -52.1, 0), App.Vector(0, 0, 1), 3), math.radians(70.53), math.radians(90)),  # 4
    Part.ArcOfCircle(Part.Circle(App.Vector(121.3, -52.1, 0), App.Vector(0, 0, 1), 3), math.radians(19), math.radians(71)),  # 5
    Part.ArcOfCircle(Part.Circle(App.Vector(121.3, -52.1, 0), App.Vector(0, 0, 1), 3), math.radians(0), math.radians(19.47)),  # 6
    Part.LineSegment(App.Vector(124.3, -52.1, 0), App.Vector(124.3, -55.1, 0)),  # 7
    Part.LineSegment(App.Vector(124.3, -55.1, 0), App.Vector(150.3, -55.1, 0)),  # 8
    Part.LineSegment(App.Vector(150.3, -55.1, 0), App.Vector(150.3, -52.1, 0)),  # 9
    Part.ArcOfCircle(Part.Circle(App.Vector(153.3, -52.1, 0), App.Vector(0, 0, 1), 3), math.radians(160.53), math.radians(180)),  # 10
    Part.ArcOfCircle(Part.Circle(App.Vector(153.3, -52.1, 0), App.Vector(0, 0, 1), 3), math.radians(109), math.radians(161)),  # 11
    Part.ArcOfCircle(Part.Circle(App.Vector(153.3, -52.1, 0), App.Vector(0, 0, 1), 3), math.radians(90), math.radians(109.47)),  # 12
    Part.LineSegment(App.Vector(153.3, -49.1, 0), App.Vector(156.3, -49.1, 0)),  # 13
    Part.LineSegment(App.Vector(156.3, -49.1, 0), App.Vector(156.3, -36.1, 0)),  # 14
    Part.LineSegment(App.Vector(156.3, -36.1, 0), App.Vector(153.3, -36.1, 0)),  # 15
    Part.ArcOfCircle(Part.Circle(App.Vector(153.3, -33.1, 0), App.Vector(0, 0, 1), 3), math.radians(-109.47), math.radians(-90)),  # 16
    Part.ArcOfCircle(Part.Circle(App.Vector(153.3, -33.1, 0), App.Vector(0, 0, 1), 3), math.radians(-161), math.radians(-109)),  # 17
    Part.ArcOfCircle(Part.Circle(App.Vector(153.3, -33.1, 0), App.Vector(0, 0, 1), 3), math.radians(180), math.radians(199.47)),  # 18
    Part.LineSegment(App.Vector(150.3, -33.1, 0), App.Vector(150.3, -30.1, 0)),  # 19
    Part.LineSegment(App.Vector(150.3, -30.1, 0), App.Vector(124.3, -30.1, 0)),  # 20
    Part.LineSegment(App.Vector(124.3, -30.1, 0), App.Vector(124.3, -33.1, 0)),  # 21
    Part.ArcOfCircle(Part.Circle(App.Vector(121.3, -33.1, 0), App.Vector(0, 0, 1), 3), math.radians(-19.47), math.radians(0)),  # 22
    Part.ArcOfCircle(Part.Circle(App.Vector(121.3, -33.1, 0), App.Vector(0, 0, 1), 3), math.radians(-71), math.radians(-19)),  # 23
    Part.LineSegment(App.Vector(128.3, -34.1, 0), App.Vector(146.4, -34.1, 0)),  # 24
    Part.ArcOfCircle(Part.Circle(App.Vector(153.3, -33.1, 0), App.Vector(0, 0, 1), 7), math.radians(-172), math.radians(-98)),  # 25
    Part.LineSegment(App.Vector(152.3, -40.1, 0), App.Vector(152.3, -45.2, 0)),  # 26
    Part.ArcOfCircle(Part.Circle(App.Vector(153.3, -52.1, 0), App.Vector(0, 0, 1), 7), math.radians(98), math.radians(172)),  # 27
    Part.LineSegment(App.Vector(146.4, -51.1, 0), App.Vector(128.3, -51.1, 0)),  # 28
    Part.ArcOfCircle(Part.Circle(App.Vector(121.3, -52.1, 0), App.Vector(0, 0, 1), 7), math.radians(8), math.radians(82)),  # 29
    Part.LineSegment(App.Vector(122.3, -45.2, 0), App.Vector(122.3, -40.1, 0)),  # 30
    Part.ArcOfCircle(Part.Circle(App.Vector(121.3, -33.1, 0), App.Vector(0, 0, 1), 7), math.radians(-82), math.radians(-8)),  # 31
], False)
sketch8.addConstraint([
    Sketcher.Constraint("Tangent", 0, 1, 1, 1),
    Sketcher.Constraint("Coincident", 1, 2, 2, 1),
    Sketcher.Constraint("Coincident", 2, 2, 3, 1),
    Sketcher.Constraint("Tangent", 3, 2, 4, 2),
    Sketcher.Constraint("Tangent", 4, 1, 5, 2),
    Sketcher.Constraint("Tangent", 5, 1, 6, 2),
    Sketcher.Constraint("Tangent", 6, 1, 7, 1),
    Sketcher.Constraint("Coincident", 7, 2, 8, 1),
    Sketcher.Constraint("Coincident", 8, 2, 9, 1),
    Sketcher.Constraint("Tangent", 9, 2, 10, 2),
    Sketcher.Constraint("Tangent", 10, 1, 11, 2),
    Sketcher.Constraint("Tangent", 11, 1, 12, 2),
    Sketcher.Constraint("Tangent", 12, 1, 13, 1),
    Sketcher.Constraint("Coincident", 13, 2, 14, 1),
    Sketcher.Constraint("Coincident", 14, 2, 15, 1),
    Sketcher.Constraint("Tangent", 15, 2, 16, 2),
    Sketcher.Constraint("Tangent", 16, 1, 17, 2),
    Sketcher.Constraint("Tangent", 17, 1, 18, 2),
    Sketcher.Constraint("Tangent", 18, 1, 19, 1),
    Sketcher.Constraint("Coincident", 19, 2, 20, 1),
    Sketcher.Constraint("Coincident", 20, 2, 21, 1),
    Sketcher.Constraint("Tangent", 21, 2, 22, 2),
    Sketcher.Constraint("Tangent", 22, 1, 23, 2),
    Sketcher.Constraint("Tangent", 23, 1, 0, 2),
    Sketcher.Constraint("Coincident", 24, 2, 25, 1),
    Sketcher.Constraint("Coincident", 25, 2, 26, 1),
    Sketcher.Constraint("Coincident", 26, 2, 27, 1),
    Sketcher.Constraint("Coincident", 27, 2, 28, 1),
    Sketcher.Constraint("Coincident", 28, 2, 29, 1),
    Sketcher.Constraint("Coincident", 29, 2, 30, 1),
    Sketcher.Constraint("Coincident", 30, 2, 31, 1),
    Sketcher.Constraint("Coincident", 31, 2, 24, 1),
    Sketcher.Constraint("Horizontal", 1),
    Sketcher.Constraint("Vertical", 2),
    Sketcher.Constraint("Horizontal", 3),
    Sketcher.Constraint("Vertical", 7),
    Sketcher.Constraint("Horizontal", 8),
    Sketcher.Constraint("Vertical", 9),
    Sketcher.Constraint("Horizontal", 13),
    Sketcher.Constraint("Vertical", 14),
    Sketcher.Constraint("Horizontal", 15),
    Sketcher.Constraint("Vertical", 19),
    Sketcher.Constraint("Horizontal", 20),
    Sketcher.Constraint("Vertical", 21),
    Sketcher.Constraint("Horizontal", 24),
    Sketcher.Constraint("Vertical", 26),
    Sketcher.Constraint("Horizontal", 28),
    Sketcher.Constraint("Vertical", 30),
    Sketcher.Constraint("Coincident", 6, 3, 4, 3),
    Sketcher.Constraint("Coincident", 12, 3, 10, 3),
    Sketcher.Constraint("Coincident", 18, 3, 16, 3),
    Sketcher.Constraint("Coincident", 22, 3, 0, 3),
    Sketcher.Constraint("Coincident", 25, 3, 16, 3),
    Sketcher.Constraint("Coincident", 27, 3, 10, 3),
    Sketcher.Constraint("Coincident", 29, 3, 4, 3),
    Sketcher.Constraint("Coincident", 31, 3, 0, 3),
    Sketcher.Constraint("Equal", 0, 4),
    Sketcher.Constraint("Equal", 6, 10),
    Sketcher.Constraint("Equal", 12, 16),
    Sketcher.Constraint("Equal", 25, 27),
    Sketcher.Constraint("Equal", 27, 29),
    Sketcher.Constraint("Equal", 29, 31),
    Sketcher.Constraint("Horizontal", 6, 3, 10, 3),
    Sketcher.Constraint("Horizontal", 0, 3, 16, 3),
    Sketcher.Constraint("Horizontal", 5, 1, 10, 1),
    Sketcher.Constraint("Horizontal", 4, 1, 11, 1),
    Sketcher.Constraint("Horizontal", 17, 1, 22, 1),
    Sketcher.Constraint("Horizontal", 16, 1, 23, 1),
    Sketcher.Constraint("Horizontal", 22, 1, 24, 2),
    Sketcher.Constraint("Horizontal", 10, 1, 27, 2),
    Sketcher.Constraint("Horizontal", 26, 2, 29, 2),
    Sketcher.Constraint("Horizontal", 25, 2, 30, 2),
    Sketcher.Constraint("Vertical", 0, 3, 4, 3),
    Sketcher.Constraint("Vertical", 11, 1, 16, 1),
    Sketcher.Constraint("Vertical", 10, 1, 17, 1),
    Sketcher.Constraint("Vertical", 16, 1, 25, 2),
    Sketcher.Constraint("Equal", 3, 13),
    Sketcher.Constraint("Equal", 15, 7),
    Sketcher.Constraint("Equal", 9, 19),
    Sketcher.Constraint("Radius", 0, 3.0),
    Sketcher.Constraint("Radius", 25, 7.0),
    Sketcher.Constraint("DistanceX", 1, 2, 1, 1, 3.0),
    Sketcher.Constraint("DistanceX", 8, 1, 8, 2, 26.0),
    Sketcher.Constraint("DistanceY", 2, 2, 2, 1, 13.0),
    Sketcher.Constraint("DistanceX", 3, 2, 4, 1, 1.0),
    Sketcher.Constraint("DistanceY", 5, 3, 5, 1, 1.0),
    Sketcher.Constraint("DistanceY", 0, 3, -1, 1, 33.131731),
    Sketcher.Constraint("DistanceX", -1, 1, 10, 1, 150.507159),
])
pad5 = doc.addObject("PartDesign::Pad", "Pad004")
body3.addObject(pad5)
pad5.Profile = sketch8
pad5.Length = 8
doc.recompute()

fillet2 = doc.addObject("PartDesign::Fillet", "Fillet001")
body3.addObject(fillet2)
fillet2.Base = (pad5, edges_at(pad5, [
    (122.336, -40.06, 4),
    (128.264, -34.132, 4),
    (150.336, -55.132, 4),
    (156.336, -49.132, 4),
    (124.336, -55.132, 4),
    (118.336, -49.132, 4),
    (122.336, -45.204, 4),
    (128.264, -51.132, 4),
    (146.407, -51.132, 4),
    (152.336, -45.204, 4),
    (152.336, -40.06, 4),
    (146.407, -34.132, 4),
    (118.336, -36.132, 4),
    (124.336, -30.132, 4),
    (150.336, -30.132, 4),
    (156.336, -36.132, 4),
]))
fillet2.Radius = 2

doc.recompute()
